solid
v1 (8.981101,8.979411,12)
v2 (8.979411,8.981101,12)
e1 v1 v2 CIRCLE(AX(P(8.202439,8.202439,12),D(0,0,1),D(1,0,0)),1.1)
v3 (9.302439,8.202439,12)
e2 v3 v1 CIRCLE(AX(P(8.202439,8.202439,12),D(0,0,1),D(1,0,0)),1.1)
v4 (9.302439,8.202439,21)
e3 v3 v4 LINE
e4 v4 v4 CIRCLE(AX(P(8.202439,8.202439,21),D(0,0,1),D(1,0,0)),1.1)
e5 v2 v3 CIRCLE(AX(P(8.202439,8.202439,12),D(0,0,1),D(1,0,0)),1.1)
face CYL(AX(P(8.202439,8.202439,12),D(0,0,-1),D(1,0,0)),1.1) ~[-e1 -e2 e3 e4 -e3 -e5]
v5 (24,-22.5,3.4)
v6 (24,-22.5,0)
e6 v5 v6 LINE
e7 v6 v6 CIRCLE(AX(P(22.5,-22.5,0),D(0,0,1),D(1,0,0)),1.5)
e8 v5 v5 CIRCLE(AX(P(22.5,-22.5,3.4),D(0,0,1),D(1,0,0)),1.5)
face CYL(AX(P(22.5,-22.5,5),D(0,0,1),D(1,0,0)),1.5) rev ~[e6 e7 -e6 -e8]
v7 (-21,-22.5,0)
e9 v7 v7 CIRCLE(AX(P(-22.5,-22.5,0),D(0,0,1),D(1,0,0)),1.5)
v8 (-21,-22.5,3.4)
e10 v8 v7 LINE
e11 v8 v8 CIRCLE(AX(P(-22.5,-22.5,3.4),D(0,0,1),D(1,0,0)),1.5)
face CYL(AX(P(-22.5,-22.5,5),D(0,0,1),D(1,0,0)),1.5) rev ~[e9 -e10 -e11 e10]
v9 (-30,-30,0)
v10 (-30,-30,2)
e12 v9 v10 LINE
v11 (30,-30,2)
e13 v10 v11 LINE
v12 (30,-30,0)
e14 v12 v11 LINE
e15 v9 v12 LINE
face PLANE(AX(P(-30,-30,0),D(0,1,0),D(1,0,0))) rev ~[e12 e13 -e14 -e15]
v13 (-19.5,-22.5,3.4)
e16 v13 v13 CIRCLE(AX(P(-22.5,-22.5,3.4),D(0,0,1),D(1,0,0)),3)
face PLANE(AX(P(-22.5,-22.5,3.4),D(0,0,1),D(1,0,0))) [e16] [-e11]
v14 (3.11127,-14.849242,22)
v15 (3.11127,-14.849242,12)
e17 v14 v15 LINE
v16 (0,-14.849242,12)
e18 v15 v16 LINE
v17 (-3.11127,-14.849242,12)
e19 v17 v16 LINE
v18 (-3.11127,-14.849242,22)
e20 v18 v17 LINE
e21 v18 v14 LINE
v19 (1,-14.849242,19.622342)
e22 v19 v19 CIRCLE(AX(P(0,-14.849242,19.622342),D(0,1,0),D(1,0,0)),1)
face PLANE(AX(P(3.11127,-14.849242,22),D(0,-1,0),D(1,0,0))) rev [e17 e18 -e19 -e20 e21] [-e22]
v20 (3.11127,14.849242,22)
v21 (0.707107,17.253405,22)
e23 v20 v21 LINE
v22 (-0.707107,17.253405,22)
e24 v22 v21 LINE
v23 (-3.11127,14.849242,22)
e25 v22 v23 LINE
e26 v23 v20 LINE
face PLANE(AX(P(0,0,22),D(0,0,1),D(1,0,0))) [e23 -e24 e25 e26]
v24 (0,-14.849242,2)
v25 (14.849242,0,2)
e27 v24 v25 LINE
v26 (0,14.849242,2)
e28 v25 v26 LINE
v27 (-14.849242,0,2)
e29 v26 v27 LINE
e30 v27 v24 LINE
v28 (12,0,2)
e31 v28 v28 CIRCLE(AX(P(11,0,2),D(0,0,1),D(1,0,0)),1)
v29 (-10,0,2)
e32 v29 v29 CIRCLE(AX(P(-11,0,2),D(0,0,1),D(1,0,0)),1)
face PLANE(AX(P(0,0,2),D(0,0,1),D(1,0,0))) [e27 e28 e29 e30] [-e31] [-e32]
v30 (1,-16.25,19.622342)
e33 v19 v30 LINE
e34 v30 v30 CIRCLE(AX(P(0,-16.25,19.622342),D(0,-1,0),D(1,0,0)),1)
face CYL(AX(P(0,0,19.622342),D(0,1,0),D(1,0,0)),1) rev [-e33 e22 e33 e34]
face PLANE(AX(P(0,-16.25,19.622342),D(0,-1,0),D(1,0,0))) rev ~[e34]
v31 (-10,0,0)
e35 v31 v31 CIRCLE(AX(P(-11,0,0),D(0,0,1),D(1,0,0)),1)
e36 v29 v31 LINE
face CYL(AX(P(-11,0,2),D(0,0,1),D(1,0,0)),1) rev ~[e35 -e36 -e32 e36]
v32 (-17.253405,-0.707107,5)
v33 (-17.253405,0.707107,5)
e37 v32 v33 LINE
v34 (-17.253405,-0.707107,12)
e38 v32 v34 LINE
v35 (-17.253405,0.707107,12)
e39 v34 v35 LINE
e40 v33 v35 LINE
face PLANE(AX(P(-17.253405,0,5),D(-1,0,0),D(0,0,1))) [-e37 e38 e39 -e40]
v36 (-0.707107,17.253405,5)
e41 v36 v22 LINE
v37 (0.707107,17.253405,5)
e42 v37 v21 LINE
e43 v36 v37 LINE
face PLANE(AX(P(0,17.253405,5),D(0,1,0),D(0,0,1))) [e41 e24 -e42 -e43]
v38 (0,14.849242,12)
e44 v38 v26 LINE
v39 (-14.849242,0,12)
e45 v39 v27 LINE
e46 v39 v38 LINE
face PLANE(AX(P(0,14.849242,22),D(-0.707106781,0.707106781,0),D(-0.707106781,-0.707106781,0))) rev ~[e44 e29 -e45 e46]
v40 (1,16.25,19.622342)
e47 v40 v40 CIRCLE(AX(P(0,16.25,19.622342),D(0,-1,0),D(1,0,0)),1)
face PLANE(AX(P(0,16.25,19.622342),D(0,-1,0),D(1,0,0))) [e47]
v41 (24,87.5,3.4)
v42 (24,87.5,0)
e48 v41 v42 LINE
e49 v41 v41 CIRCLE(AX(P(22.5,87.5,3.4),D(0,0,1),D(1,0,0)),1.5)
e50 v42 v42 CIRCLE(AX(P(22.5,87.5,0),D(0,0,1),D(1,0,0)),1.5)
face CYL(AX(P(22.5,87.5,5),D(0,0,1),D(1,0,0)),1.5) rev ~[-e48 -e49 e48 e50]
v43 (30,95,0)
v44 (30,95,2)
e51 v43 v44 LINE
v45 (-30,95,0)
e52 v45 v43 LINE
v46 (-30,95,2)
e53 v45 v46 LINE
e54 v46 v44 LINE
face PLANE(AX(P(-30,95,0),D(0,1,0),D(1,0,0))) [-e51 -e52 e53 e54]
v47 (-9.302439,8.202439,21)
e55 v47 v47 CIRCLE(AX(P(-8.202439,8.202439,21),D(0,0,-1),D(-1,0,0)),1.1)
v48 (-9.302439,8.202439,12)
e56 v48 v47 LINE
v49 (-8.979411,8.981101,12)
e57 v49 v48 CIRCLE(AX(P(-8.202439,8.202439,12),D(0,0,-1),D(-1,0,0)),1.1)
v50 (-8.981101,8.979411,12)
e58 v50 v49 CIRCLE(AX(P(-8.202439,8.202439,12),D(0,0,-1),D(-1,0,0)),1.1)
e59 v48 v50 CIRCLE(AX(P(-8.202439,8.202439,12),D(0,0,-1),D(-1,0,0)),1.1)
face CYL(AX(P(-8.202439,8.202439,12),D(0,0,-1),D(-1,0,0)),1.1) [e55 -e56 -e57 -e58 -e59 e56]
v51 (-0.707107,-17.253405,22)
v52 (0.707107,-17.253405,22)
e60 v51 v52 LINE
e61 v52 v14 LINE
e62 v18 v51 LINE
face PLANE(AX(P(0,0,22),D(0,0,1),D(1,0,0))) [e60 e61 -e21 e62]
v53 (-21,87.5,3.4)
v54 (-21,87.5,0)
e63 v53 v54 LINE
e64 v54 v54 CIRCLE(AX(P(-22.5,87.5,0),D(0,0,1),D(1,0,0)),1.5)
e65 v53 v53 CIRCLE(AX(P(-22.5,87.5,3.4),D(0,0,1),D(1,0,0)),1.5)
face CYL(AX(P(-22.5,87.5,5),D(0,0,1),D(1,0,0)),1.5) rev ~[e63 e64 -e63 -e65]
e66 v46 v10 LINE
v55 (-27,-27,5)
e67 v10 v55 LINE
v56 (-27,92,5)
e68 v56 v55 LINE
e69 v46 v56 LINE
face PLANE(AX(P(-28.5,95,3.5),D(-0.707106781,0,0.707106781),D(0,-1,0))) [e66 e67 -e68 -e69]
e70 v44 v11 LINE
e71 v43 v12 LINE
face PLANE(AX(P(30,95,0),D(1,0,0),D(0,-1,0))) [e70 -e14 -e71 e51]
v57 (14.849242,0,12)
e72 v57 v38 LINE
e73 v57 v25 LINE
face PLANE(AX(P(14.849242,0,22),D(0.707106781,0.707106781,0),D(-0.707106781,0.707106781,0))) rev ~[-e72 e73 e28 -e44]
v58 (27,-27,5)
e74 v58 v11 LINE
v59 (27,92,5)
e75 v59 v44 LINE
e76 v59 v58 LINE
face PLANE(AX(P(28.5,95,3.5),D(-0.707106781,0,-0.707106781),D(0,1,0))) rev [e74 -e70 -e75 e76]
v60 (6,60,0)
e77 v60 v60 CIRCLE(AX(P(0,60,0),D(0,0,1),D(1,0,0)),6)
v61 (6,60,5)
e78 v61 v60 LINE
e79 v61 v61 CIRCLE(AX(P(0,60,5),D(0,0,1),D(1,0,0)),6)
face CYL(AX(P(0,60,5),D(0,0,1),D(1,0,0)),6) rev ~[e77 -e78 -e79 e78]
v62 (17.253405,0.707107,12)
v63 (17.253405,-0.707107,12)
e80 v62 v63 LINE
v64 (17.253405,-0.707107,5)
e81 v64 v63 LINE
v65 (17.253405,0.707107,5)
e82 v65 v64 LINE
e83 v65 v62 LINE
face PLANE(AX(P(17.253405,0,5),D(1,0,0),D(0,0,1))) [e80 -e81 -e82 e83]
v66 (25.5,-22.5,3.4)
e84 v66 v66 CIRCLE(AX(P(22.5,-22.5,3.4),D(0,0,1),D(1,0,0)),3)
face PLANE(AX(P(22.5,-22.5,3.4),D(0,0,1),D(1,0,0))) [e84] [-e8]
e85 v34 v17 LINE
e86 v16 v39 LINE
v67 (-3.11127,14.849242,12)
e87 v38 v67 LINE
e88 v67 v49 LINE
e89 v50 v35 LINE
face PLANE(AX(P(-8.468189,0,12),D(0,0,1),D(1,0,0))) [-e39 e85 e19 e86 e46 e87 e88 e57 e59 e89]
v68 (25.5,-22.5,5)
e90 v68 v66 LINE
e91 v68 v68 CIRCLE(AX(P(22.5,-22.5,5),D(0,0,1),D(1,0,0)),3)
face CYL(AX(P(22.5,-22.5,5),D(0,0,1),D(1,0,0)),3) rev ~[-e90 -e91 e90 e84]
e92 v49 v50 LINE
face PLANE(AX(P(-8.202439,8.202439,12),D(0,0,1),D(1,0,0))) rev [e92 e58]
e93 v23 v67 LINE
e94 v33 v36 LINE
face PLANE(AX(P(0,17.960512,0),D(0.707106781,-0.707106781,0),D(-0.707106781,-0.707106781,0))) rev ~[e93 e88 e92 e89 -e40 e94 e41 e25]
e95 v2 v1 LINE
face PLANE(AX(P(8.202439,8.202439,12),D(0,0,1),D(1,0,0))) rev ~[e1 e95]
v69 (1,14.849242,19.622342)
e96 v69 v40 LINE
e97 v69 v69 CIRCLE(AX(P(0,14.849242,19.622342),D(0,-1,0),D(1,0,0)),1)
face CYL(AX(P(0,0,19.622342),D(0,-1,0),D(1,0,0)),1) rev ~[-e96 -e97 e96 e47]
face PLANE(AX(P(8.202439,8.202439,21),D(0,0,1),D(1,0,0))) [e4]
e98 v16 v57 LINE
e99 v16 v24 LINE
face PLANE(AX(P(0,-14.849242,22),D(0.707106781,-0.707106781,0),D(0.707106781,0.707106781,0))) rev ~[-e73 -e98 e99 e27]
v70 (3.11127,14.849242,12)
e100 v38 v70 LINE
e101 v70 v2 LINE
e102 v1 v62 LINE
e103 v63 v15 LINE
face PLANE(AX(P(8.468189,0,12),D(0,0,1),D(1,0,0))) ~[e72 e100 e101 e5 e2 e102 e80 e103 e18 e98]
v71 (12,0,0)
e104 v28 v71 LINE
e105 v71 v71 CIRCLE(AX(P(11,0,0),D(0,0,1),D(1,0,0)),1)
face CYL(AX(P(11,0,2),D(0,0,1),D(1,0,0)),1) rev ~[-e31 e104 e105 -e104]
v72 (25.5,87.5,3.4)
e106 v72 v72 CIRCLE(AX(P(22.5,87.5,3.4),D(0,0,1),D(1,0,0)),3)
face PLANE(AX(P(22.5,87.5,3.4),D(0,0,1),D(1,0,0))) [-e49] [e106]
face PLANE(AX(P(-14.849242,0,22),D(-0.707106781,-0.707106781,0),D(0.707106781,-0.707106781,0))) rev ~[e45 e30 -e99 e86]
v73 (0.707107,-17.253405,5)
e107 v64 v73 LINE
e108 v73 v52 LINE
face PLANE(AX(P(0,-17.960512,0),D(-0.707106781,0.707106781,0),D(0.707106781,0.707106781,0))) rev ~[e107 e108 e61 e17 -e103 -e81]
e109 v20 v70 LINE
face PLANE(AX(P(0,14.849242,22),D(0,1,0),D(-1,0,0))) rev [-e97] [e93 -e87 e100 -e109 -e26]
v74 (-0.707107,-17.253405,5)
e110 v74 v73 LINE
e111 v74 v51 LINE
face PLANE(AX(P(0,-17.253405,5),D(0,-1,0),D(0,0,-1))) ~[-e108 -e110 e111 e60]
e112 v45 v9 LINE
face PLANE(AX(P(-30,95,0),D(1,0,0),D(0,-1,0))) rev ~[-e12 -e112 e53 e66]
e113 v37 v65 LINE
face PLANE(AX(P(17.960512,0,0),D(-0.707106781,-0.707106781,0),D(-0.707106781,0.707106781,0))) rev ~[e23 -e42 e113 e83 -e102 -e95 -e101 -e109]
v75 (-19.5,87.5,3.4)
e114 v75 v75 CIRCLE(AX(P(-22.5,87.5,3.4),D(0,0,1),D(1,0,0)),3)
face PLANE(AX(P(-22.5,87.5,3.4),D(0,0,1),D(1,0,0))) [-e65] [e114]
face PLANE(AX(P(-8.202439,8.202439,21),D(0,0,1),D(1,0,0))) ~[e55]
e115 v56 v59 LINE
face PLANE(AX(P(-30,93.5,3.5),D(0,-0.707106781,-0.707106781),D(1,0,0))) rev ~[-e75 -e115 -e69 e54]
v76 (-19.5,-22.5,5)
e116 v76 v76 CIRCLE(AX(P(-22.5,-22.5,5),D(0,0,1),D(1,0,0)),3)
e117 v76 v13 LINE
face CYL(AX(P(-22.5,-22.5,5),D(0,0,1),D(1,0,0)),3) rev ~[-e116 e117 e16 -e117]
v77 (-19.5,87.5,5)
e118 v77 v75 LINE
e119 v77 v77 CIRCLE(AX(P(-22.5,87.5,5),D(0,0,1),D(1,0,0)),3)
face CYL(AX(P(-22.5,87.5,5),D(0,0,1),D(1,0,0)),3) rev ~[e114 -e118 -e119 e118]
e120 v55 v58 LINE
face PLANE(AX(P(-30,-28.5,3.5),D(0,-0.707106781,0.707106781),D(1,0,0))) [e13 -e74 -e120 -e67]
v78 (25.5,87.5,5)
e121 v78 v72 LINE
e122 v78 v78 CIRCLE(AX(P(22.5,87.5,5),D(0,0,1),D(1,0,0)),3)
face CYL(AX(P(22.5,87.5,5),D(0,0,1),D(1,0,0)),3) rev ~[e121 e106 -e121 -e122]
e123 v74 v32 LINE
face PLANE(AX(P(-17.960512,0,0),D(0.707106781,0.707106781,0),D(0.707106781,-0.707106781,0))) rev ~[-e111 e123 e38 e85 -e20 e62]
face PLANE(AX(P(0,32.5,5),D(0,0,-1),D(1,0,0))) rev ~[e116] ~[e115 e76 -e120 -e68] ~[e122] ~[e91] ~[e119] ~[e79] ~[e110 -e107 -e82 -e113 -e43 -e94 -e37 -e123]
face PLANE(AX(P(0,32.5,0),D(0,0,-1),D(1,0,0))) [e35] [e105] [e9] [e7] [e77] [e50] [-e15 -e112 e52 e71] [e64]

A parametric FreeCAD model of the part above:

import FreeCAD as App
import Part
import Sketcher
from FreeCAD import Vector


def edges_at(feature, points):
    """Names of the edges that pass closest to the given points."""
    edges = feature.Shape.Edges
    near = lambda p: min(range(len(edges)), key=lambda i: edges[i].distToShape(Part.Vertex(*p))[0])
    return sorted({f"Edge{near(p) + 1}" for p in points})

doc = App.newDocument("Part")
body = doc.addObject("PartDesign::Body", "Body")

sketch1 = doc.addObject("Sketcher::SketchObject", "Sketch")
body.addObject(sketch1)
sketch1.AttachmentSupport = (doc.XY_Plane, [""])
sketch1.MapMode = "FlatFace"
sketch1.addGeometry([
    Part.LineSegment(Vector(0, -18, 0), Vector(18, 0, 0)),
    Part.LineSegment(Vector(18, 0, 0), Vector(0, 18, 0)),
    Part.LineSegment(Vector(0, 18, 0), Vector(-18, 0, 0)),
    Part.LineSegment(Vector(-18, 0, 0), Vector(0, -18, 0)),
], False)
sketch1.addConstraint([
    Sketcher.Constraint("Coincident", 0, 2, 1, 1),
    Sketcher.Constraint("Coincident", 1, 2, 2, 1),
    Sketcher.Constraint("Coincident", 2, 2, 3, 1),
    Sketcher.Constraint("Coincident", 3, 2, 0, 1),
    Sketcher.Constraint("Symmetric", 0, 2, 2, 2, -1, 1),
    Sketcher.Constraint("Symmetric", 1, 2, 3, 2, -1, 1),
    Sketcher.Constraint("PointOnObject", 0, 2, -1),
    Sketcher.Constraint("PointOnObject", 1, 2, -2),
    Sketcher.Constraint("Perpendicular", 0, 1),
    Sketcher.Constraint("Distance", 0, 25.4),
])
pad1 = doc.addObject("PartDesign::Pad", "Pad")
body.addObject(pad1)
pad1.Profile = sketch1
pad1.Length = 22

sketch2 = doc.addObject("Sketcher::SketchObject", "Sketch001")
body.addObject(sketch2)
sketch2.AttachmentSupport = (doc.XY_Plane, [""])
sketch2.MapMode = "FlatFace"
sketch2.AttachmentOffset = App.Placement(Vector(0, 0, 22), App.Rotation())
sketch2.addGeometry([
    Part.LineSegment(Vector(0, 15, 0), Vector(-15, 0, 0)),
    Part.LineSegment(Vector(-15, 0, 0), Vector(0, -15, 0)),
    Part.LineSegment(Vector(0, -15, 0), Vector(15, 0, 0)),
    Part.LineSegment(Vector(15, 0, 0), Vector(0, 15, 0)),
], False)
sketch2.addConstraint([
    Sketcher.Constraint("Coincident", 0, 2, 1, 1),
    Sketcher.Constraint("Coincident", 1, 2, 2, 1),
    Sketcher.Constraint("Coincident", 2, 2, 3, 1),
    Sketcher.Constraint("Coincident", 3, 2, 0, 1),
    Sketcher.Constraint("Symmetric", 0, 2, 2, 2, -1, 1),
    Sketcher.Constraint("Symmetric", 1, 2, 3, 2, -1, 1),
    Sketcher.Constraint("PointOnObject", 0, 2, -1),
    Sketcher.Constraint("PointOnObject", 1, 2, -2),
    Sketcher.Constraint("Perpendicular", 0, 1),
    Sketcher.Constraint("Distance", 0, 20.999999),
])
pocket1 = doc.addObject("PartDesign::Pocket", "Pocket")
body.addObject(pocket1)
pocket1.Profile = sketch2
pocket1.Length = 20

sketch3 = doc.addObject("Sketcher::SketchObject", "Sketch002")
body.addObject(sketch3)
sketch3.AttachmentSupport = (doc.XY_Plane, [""])
sketch3.MapMode = "FlatFace"
sketch3.AttachmentOffset = App.Placement(Vector(0, 0, 22), App.Rotation())
sketch3.addGeometry([
    Part.LineSegment(Vector(-3.1, 14.8, 0), Vector(-18, 0, 0)),
    Part.LineSegment(Vector(-18, 0, 0), Vector(-3.1, -14.8, 0)),
    Part.LineSegment(Vector(-3.1, -14.8, 0), Vector(0, -14.8, 0)),
    Part.LineSegment(Vector(0, -14.8, 0), Vector(-14.8, 0, 0)),
    Part.LineSegment(Vector(-14.8, 0, 0), Vector(0, 14.8, 0)),
    Part.LineSegment(Vector(0, 14.8, 0), Vector(-3.1, 14.8, 0)),
], False)
sketch3.addConstraint([
    Sketcher.Constraint("Coincident", 0, 2, 1, 1),
    Sketcher.Constraint("Coincident", 1, 2, 2, 1),
    Sketcher.Constraint("Coincident", 2, 2, 3, 1),
    Sketcher.Constraint("Coincident", 3, 2, 4, 1),
    Sketcher.Constraint("Coincident", 4, 2, 5, 1),
    Sketcher.Constraint("Coincident", 5, 2, 0, 1),
    Sketcher.Constraint("Horizontal", 2),
    Sketcher.Constraint("Horizontal", 5),
    Sketcher.Constraint("Symmetric", 2, 2, 4, 2, -1, 1),
    Sketcher.Constraint("PointOnObject", 0, 2, -1),
    Sketcher.Constraint("PointOnObject", 2, 2, -2),
    Sketcher.Constraint("PointOnObject", 3, 2, -1),
    Sketcher.Constraint("Perpendicular", 0, 1),
    Sketcher.Constraint("Parallel", 1, 3),
    Sketcher.Constraint("Perpendicular", 3, 4),
    Sketcher.Constraint("Distance", 0, 20.999999),
    Sketcher.Constraint("DistanceX", 2, 1, 2, 2, 3.11127),
])
pocket2 = doc.addObject("PartDesign::Pocket", "Pocket001")
body.addObject(pocket2)
pocket2.Profile = sketch3
pocket2.Length = 10
doc.recompute()

mirrored = doc.addObject("PartDesign::Mirrored", "Mirrored")
body.addObject(mirrored)
mirrored.Originals = [pocket2]
mirrored.MirrorPlane = (doc.YZ_Plane, [""])
body.Tip = mirrored

sketch4 = doc.addObject("Sketcher::SketchObject", "Sketch003")
body.addObject(sketch4)
sketch4.AttachmentSupport = (doc.XZ_Plane, [""])
sketch4.MapMode = "FlatFace"
sketch4.addGeometry(Part.Circle(Vector(0, 19.6, 0), Vector(0, 0, 1), 1), False)
sketch4.addConstraint([
    Sketcher.Constraint("PointOnObject", 0, 3, -2),
    Sketcher.Constraint("Diameter", 0, 2.0),
    Sketcher.Constraint("DistanceY", -1, 1, 0, 3, 19.622342),
])
pocket3 = doc.addObject("PartDesign::Pocket", "Pocket002")
body.addObject(pocket3)
pocket3.Profile = sketch4
pocket3.Type = "TwoLengths"
pocket3.Length = 16.25
pocket3.Length2 = 16.25

sketch5 = doc.addObject("Sketcher::SketchObject", "Sketch004")
body.addObject(sketch5)
sketch5.AttachmentSupport = (doc.XY_Plane, [""])
sketch5.MapMode = "FlatFace"
sketch5.AttachmentOffset = App.Placement(Vector(0, 0, 12), App.Rotation())
sketch5.addGeometry(Part.Circle(Vector(8.2, 8.2, 0), Vector(0, 0, 1), 1.1), False)
sketch5.addConstraint([
    Sketcher.Constraint("Diameter", 0, 2.2),
    Sketcher.Constraint("DistanceX", -1, 1, 0, 3, 8.202439),
    Sketcher.Constraint("DistanceY", -1, 1, 0, 3, 8.202439),
])
pad2 = doc.addObject("PartDesign::Pad", "Pad001")
body.addObject(pad2)
pad2.Profile = sketch5
pad2.Length = 9
doc.recompute()

mirrored2 = doc.addObject("PartDesign::Mirrored", "Mirrored001")
body.addObject(mirrored2)
mirrored2.Originals = [pad2]
mirrored2.MirrorPlane = (doc.YZ_Plane, [""])
body.Tip = mirrored2

sketch6 = doc.addObject("Sketcher::SketchObject", "Sketch005")
body.addObject(sketch6)
sketch6.AttachmentSupport = (doc.XY_Plane, [""])
sketch6.MapMode = "FlatFace"
sketch6.AttachmentOffset = App.Placement(Vector(0, 0, 2), App.Rotation())
sketch6.addGeometry([
    Part.Circle(Vector(-11, 0, 0), Vector(0, 0, 1), 1),
    Part.Circle(Vector(11, 0, 0), Vector(0, 0, 1), 1),
], False)
sketch6.addConstraint([
    Sketcher.Constraint("Equal", 0, 1),
    Sketcher.Constraint("Symmetric", 0, 3, 1, 3, -1, 1),
    Sketcher.Constraint("PointOnObject", 0, 3, -1),
    Sketcher.Constraint("Diameter", 0, 2.0),
    Sketcher.Constraint("DistanceX", 0, 3, -1, 1, 11.0),
])
pocket4 = doc.addObject("PartDesign::Pocket", "Pocket003")
body.addObject(pocket4)
pocket4.Profile = sketch6
pocket4.Length = 5

sketch7 = doc.addObject("Sketcher::SketchObject", "Sketch006")
body.addObject(sketch7)
sketch7.AttachmentSupport = (doc.XY_Plane, [""])
sketch7.MapMode = "FlatFace"
sketch7.addGeometry([
    Part.LineSegment(Vector(-30, -30, 0), Vector(-30, 95, 0)),
    Part.LineSegment(Vector(-30, 95, 0), Vector(30, 95, 0)),
    Part.LineSegment(Vector(30, 95, 0), Vector(30, -30, 0)),
    Part.LineSegment(Vector(30, -30, 0), Vector(-30, -30, 0)),
    Part.LineSegment(Vector(-18, 0, 0), Vector(0, -18, 0)),
    Part.LineSegment(Vector(0, -18, 0), Vector(18, 0, 0)),
    Part.LineSegment(Vector(18, 0, 0), Vector(0, 18, 0)),
    Part.LineSegment(Vector(0, 18, 0), Vector(-18, 0, 0)),
], False)
sketch7.addConstraint([
    Sketcher.Constraint("Coincident", 0, 2, 1, 1),
    Sketcher.Constraint("Coincident", 1, 2, 2, 1),
    Sketcher.Constraint("Coincident", 2, 2, 3, 1),
    Sketcher.Constraint("Coincident", 3, 2, 0, 1),
    Sketcher.Constraint("Coincident", 4, 2, 5, 1),
    Sketcher.Constraint("Coincident", 5, 2, 6, 1),
    Sketcher.Constraint("Coincident", 6, 2, 7, 1),
    Sketcher.Constraint("Coincident", 7, 2, 4, 1),
    Sketcher.Constraint("Vertical", 0),
    Sketcher.Constraint("Horizontal", 1),
    Sketcher.Constraint("Vertical", 2),
    Sketcher.Constraint("Horizontal", 3),
    Sketcher.Constraint("Symmetric", 4, 2, 6, 2, -1, 1),
    Sketcher.Constraint("Symmetric", 5, 2, 7, 2, -1, 1),
    Sketcher.Constraint("PointOnObject", 4, 2, -2),
    Sketcher.Constraint("PointOnObject", 5, 2, -1),
    Sketcher.Constraint("Perpendicular", 4, 5),
    Sketcher.Constraint("DistanceX", 1, 1, 1, 2, 60.0),
    Sketcher.Constraint("DistanceY", 0, 1, 0, 2, 125.0),
    Sketcher.Constraint("DistanceX", 0, 2, -1, 1, 30.0),
    Sketcher.Constraint("DistanceY", -1, 1, 0, 2, 95.0),
    Sketcher.Constraint("DistanceY", 4, 2, -1, 1, 17.526509),
])
pad3 = doc.addObject("PartDesign::Pad", "Pad002")
body.addObject(pad3)
pad3.Profile = sketch7
pad3.Length = 5
doc.recompute()

chamfer = doc.addObject("PartDesign::Chamfer", "Chamfer")
body.addObject(chamfer)
chamfer.Base = (pad3, edges_at(pad3, [
    (30, 32.5, 5),
    (0, 95, 5),
    (-30, 32.5, 5),
    (0, -30, 5),
]))
chamfer.Size = 3
doc.recompute()

chamfer2 = doc.addObject("PartDesign::Chamfer", "Chamfer001")
body.addObject(chamfer2)
chamfer2.Base = (chamfer, edges_at(chamfer, [
    (17.961, 0, 8.5),
    (0, 17.961, 13.5),
    (-17.961, 0, 8.5),
    (0, -17.961, 13.5),
]))
chamfer2.Size = 1

sketch8 = doc.addObject("Sketcher::SketchObject", "Sketch007")
body.addObject(sketch8)
sketch8.AttachmentSupport = (doc.XY_Plane, [""])
sketch8.MapMode = "FlatFace"
sketch8.AttachmentOffset = App.Placement(Vector(0, 0, 5), App.Rotation())
sketch8.addGeometry(Part.Circle(Vector(0, 60, 0), Vector(0, 0, 1), 6), False)
sketch8.addConstraint([
    Sketcher.Constraint("PointOnObject", 0, 3, -2),
    Sketcher.Constraint("Diameter", 0, 12.0),
    Sketcher.Constraint("DistanceY", -1, 1, 0, 3, 60.0),
])
pocket5 = doc.addObject("PartDesign::Pocket", "Pocket004")
body.addObject(pocket5)
pocket5.Profile = sketch8
pocket5.Length = 5

sketch9 = doc.addObject("Sketcher::SketchObject", "Sketch008")
body.addObject(sketch9)
sketch9.AttachmentSupport = (doc.XY_Plane, [""])
sketch9.MapMode = "FlatFace"
sketch9.AttachmentOffset = App.Placement(Vector(0, 0, 5), App.Rotation())
sketch9.addGeometry([
    Part.Circle(Vector(-22.5, 87.5, 0), Vector(0, 0, 1), 1.5),
    Part.Circle(Vector(22.5, 87.5, 0), Vector(0, 0, 1), 1.5),
    Part.Circle(Vector(22.5, -22.5, 0), Vector(0, 0, 1), 1.5),
    Part.Circle(Vector(-22.5, -22.5, 0), Vector(0, 0, 1), 1.5),
], False)
sketch9.addConstraint([
    Sketcher.Constraint("Equal", 0, 1),
    Sketcher.Constraint("Equal", 1, 2),
    Sketcher.Constraint("Equal", 2, 3),
    Sketcher.Constraint("Symmetric", 0, 3, 1, 3, -2),
    Sketcher.Constraint("Symmetric", 2, 3, 3, 3, -2),
    Sketcher.Constraint("Vertical", 1, 3, 2, 3),
    Sketcher.Constraint("Diameter", 0, 3.0),
    Sketcher.Constraint("DistanceX", 0, 3, 1, 3, 45.0),
    Sketcher.Constraint("DistanceY", 2, 3, 1, 3, 110.0),
    Sketcher.Constraint("DistanceY", -1, 1, 0, 3, 87.5),
])
pocket6 = doc.addObject("PartDesign::Pocket", "Pocket005")
body.addObject(pocket6)
pocket6.Profile = sketch9
pocket6.Length = 5

sketch10 = doc.addObject("Sketcher::SketchObject", "Sketch009")
body.addObject(sketch10)
sketch10.AttachmentSupport = (doc.XY_Plane, [""])
sketch10.MapMode = "FlatFace"
sketch10.AttachmentOffset = App.Placement(Vector(0, 0, 5), App.Rotation())
sketch10.addGeometry([
    Part.Circle(Vector(-22.5, 87.5, 0), Vector(0, 0, 1), 3),
    Part.Circle(Vector(22.5, 87.5, 0), Vector(0, 0, 1), 3),
    Part.Circle(Vector(-22.5, -22.5, 0), Vector(0, 0, 1), 3),
    Part.Circle(Vector(22.5, -22.5, 0), Vector(0, 0, 1), 3),
], False)
sketch10.addConstraint([
    Sketcher.Constraint("Equal", 0, 1),
    Sketcher.Constraint("Equal", 1, 2),
    Sketcher.Constraint("Equal", 2, 3),
    Sketcher.Constraint("Symmetric", 0, 3, 1, 3, -2),
    Sketcher.Constraint("Symmetric", 2, 3, 3, 3, -2),
    Sketcher.Constraint("Vertical", 0, 3, 2, 3),
    Sketcher.Constraint("Diameter", 0, 6.0),
    Sketcher.Constraint("DistanceX", 0, 3, 1, 3, 45.0),
    Sketcher.Constraint("DistanceY", 2, 3, 0, 3, 110.0),
    Sketcher.Constraint("DistanceY", -1, 1, 0, 3, 87.5),
])
pocket7 = doc.addObject("PartDesign::Pocket", "Pocket006")
body.addObject(pocket7)
pocket7.Profile = sketch10
pocket7.Length = 1.6

doc.recompute()
